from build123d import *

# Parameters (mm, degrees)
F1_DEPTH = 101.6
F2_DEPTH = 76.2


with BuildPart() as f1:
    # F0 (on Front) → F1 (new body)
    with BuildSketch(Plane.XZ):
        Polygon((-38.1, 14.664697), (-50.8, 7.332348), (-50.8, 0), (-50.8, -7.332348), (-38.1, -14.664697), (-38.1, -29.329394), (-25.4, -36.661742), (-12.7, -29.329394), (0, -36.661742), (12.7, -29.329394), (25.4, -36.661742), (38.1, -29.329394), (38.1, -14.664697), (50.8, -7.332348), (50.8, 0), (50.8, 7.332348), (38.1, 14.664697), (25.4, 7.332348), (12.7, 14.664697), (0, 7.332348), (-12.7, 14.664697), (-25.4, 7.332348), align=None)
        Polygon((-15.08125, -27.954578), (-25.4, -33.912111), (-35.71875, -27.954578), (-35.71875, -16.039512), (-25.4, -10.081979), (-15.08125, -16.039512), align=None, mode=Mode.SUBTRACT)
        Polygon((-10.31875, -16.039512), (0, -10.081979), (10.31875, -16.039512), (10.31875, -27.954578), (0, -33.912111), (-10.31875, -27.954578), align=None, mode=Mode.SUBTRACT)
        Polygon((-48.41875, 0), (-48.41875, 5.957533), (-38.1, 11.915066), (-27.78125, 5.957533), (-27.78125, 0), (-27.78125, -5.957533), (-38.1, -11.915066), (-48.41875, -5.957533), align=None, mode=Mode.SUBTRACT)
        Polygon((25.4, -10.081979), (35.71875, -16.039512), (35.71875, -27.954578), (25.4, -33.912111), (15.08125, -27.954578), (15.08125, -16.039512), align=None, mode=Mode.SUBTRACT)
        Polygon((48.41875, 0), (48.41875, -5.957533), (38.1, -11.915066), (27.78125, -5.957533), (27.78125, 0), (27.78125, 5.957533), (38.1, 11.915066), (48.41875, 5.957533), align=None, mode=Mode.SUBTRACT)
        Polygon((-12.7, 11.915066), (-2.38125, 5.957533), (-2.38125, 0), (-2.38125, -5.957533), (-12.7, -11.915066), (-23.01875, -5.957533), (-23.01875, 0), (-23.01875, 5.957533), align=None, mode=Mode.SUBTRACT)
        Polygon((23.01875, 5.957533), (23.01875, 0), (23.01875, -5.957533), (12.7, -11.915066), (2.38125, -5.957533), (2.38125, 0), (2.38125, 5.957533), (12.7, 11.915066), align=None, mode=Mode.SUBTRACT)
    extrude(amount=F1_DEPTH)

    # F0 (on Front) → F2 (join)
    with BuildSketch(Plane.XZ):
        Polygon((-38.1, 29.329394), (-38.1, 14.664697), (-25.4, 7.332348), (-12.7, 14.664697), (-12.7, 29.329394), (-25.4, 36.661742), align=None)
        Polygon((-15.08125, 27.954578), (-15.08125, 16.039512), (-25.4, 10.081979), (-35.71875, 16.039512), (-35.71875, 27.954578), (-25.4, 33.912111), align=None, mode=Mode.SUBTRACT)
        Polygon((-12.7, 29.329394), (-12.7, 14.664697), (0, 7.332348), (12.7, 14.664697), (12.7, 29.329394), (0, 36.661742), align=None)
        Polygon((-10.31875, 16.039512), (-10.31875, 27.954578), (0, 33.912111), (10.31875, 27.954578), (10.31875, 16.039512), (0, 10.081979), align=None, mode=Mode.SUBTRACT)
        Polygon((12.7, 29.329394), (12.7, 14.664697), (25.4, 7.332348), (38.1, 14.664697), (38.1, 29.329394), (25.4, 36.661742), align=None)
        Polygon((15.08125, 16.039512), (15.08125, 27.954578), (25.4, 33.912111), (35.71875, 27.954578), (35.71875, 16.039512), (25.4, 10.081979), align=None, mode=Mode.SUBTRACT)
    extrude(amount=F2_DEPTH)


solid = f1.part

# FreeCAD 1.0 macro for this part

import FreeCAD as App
import Part
import Sketcher
Q = App.Units.Quantity


def add_polygon(sketch, points):
    """Adds a closed chain of lines whose ends are joined by coincident constraints."""
    first, n = sketch.GeometryCount, len(points)
    for a, b in zip(points, points[1:] + points[:1]):
        sketch.addGeometry(Part.LineSegment(App.Vector(*a, 0), App.Vector(*b, 0)), False)
    for i in range(n):
        sketch.addConstraint(Sketcher.Constraint("Coincident", first + i, 2, first + (i + 1) % n, 1))

doc = App.newDocument("Part")
body = doc.addObject("PartDesign::Body", "Body")

# Sketch on XZ plane
sketch1 = body.newObject("Sketcher::SketchObject", "Sketch")
sketch1.AttachmentSupport = (doc.getObject("XZ_Plane"), [""])
sketch1.MapMode = "FlatFace"
add_polygon(sketch1, [(-38, 15), (-51, 7), (-51, -7), (-38, -15), (-38, -29), (-25, -37), (-13, -29), (0, -37), (13, -29), (25, -37), (38, -29), (38, -15), (51, -7), (51, 7), (38, 15), (25, 7), (13, 15), (0, 7), (-13, 15), (-25, 7)])  # lines 0-19
add_polygon(sketch1, [(-15, -16), (-15, -28), (-25, -34), (-36, -28), (-36, -16), (-25, -10)])  # lines 20-25
add_polygon(sketch1, [(-10, -28), (-10, -16), (0, -10), (10, -16), (10, -28), (0, -34)])  # lines 26-31
add_polygon(sketch1, [(15, -16), (25, -10), (36, -16), (36, -28), (25, -34), (15, -28)])  # lines 32-37
add_polygon(sketch1, [(-48, -6), (-48, 6), (-38, 12), (-28, 6), (-28, -6), (-38, -12)])  # lines 38-43
add_polygon(sketch1, [(-23, 6), (-13, 12), (-2, 6), (-2, -6), (-13, -12), (-23, -6)])  # lines 44-49
add_polygon(sketch1, [(13, 12), (23, 6), (23, -6), (13, -12), (2, -6), (2, 6)])  # lines 50-55
add_polygon(sketch1, [(48, 6), (48, -6), (38, -12), (28, -6), (28, 6), (38, 12)])  # lines 56-61
sketch1.addConstraint([
    Sketcher.Constraint("Vertical", 1),
    Sketcher.Constraint("Vertical", 3),
    Sketcher.Constraint("Vertical", 10),
    Sketcher.Constraint("Vertical", 12),
    Sketcher.Constraint("Vertical", 20),
    Sketcher.Constraint("Vertical", 23),
    Sketcher.Constraint("Vertical", 26),
    Sketcher.Constraint("Vertical", 29),
    Sketcher.Constraint("Vertical", 34),
    Sketcher.Constraint("Vertical", 37),
    Sketcher.Constraint("Vertical", 38),
    Sketcher.Constraint("Vertical", 41),
    Sketcher.Constraint("Vertical", 46),
    Sketcher.Constraint("Vertical", 49),
    Sketcher.Constraint("Vertical", 51),
    Sketcher.Constraint("Vertical", 54),
    Sketcher.Constraint("Vertical", 56),
    Sketcher.Constraint("Vertical", 59),
    Sketcher.Constraint("Symmetric", 0, 2, 11, 2, -1, 1),
    Sketcher.Constraint("Symmetric", 2, 2, 13, 2, -1, 1),
    Sketcher.Constraint("Symmetric", 10, 2, 19, 2, -1, 1),
    Sketcher.Constraint("Symmetric", 48, 2, 50, 2, -1, 1),
    Sketcher.Constraint("Symmetric", 44, 2, 52, 2, -1, 1),
    Sketcher.Constraint("Symmetric", 45, 2, 53, 2, -1, 1),
    Sketcher.Constraint("Symmetric", 47, 2, 55, 2, -1, 1),
    Sketcher.Constraint("Symmetric", 38, 2, 56, 2, -1, 1),
    Sketcher.Constraint("Symmetric", 39, 2, 57, 2, -1, 1),
    Sketcher.Constraint("Symmetric", 40, 2, 58, 2, -1, 1),
    Sketcher.Constraint("Symmetric", 42, 2, 60, 2, -1, 1),
    Sketcher.Constraint("Symmetric", 5, 2, 7, 2, -2),
    Sketcher.Constraint("Symmetric", 4, 2, 8, 2, -2),
    Sketcher.Constraint("Symmetric", 3, 2, 9, 2, -2),
    Sketcher.Constraint("Symmetric", 15, 2, 17, 2, -2),
    Sketcher.Constraint("Symmetric", 14, 2, 18, 2, -2),
    Sketcher.Constraint("Symmetric", 26, 2, 28, 2, -2),
    Sketcher.Constraint("Symmetric", 24, 2, 32, 2, -2),
    Sketcher.Constraint("Symmetric", 23, 2, 33, 2, -2),
    Sketcher.Constraint("Symmetric", 21, 2, 35, 2, -2),
    Sketcher.Constraint("Symmetric", 20, 2, 36, 2, -2),
    Sketcher.Constraint("Symmetric", 47, 2, 52, 2, -2),
    Sketcher.Constraint("Symmetric", 42, 2, 57, 2, -2),
    Sketcher.Constraint("PointOnObject", 6, 2, -2),
    Sketcher.Constraint("PointOnObject", 16, 2, -2),
    Sketcher.Constraint("PointOnObject", 27, 2, -2),
    Sketcher.Constraint("PointOnObject", 30, 2, -2),
    Sketcher.Constraint("Parallel", 2, 4),
    Sketcher.Constraint("Parallel", 0, 5),
    Sketcher.Constraint("Parallel", 4, 6),
    Sketcher.Constraint("Parallel", 5, 7),
    Sketcher.Constraint("Parallel", 8, 13),
    Sketcher.Constraint("Parallel", 11, 14),
    Sketcher.Constraint("Parallel", 13, 15),
    Sketcher.Constraint("Parallel", 14, 16),
    Sketcher.Constraint("Parallel", 17, 19),
    Sketcher.Constraint("Parallel", 18, 21),
    Sketcher.Constraint("Parallel", 19, 22),
    Sketcher.Constraint("Parallel", 21, 24),
    Sketcher.Constraint("Parallel", 22, 25),
    Sketcher.Constraint("Parallel", 24, 27),
    Sketcher.Constraint("Parallel", 27, 30),
    Sketcher.Constraint("Parallel", 28, 31),
    Sketcher.Constraint("Parallel", 30, 32),
    Sketcher.Constraint("Parallel", 32, 35),
    Sketcher.Constraint("Parallel", 35, 39),
    Sketcher.Constraint("Parallel", 36, 40),
    Sketcher.Constraint("Parallel", 39, 42),
    Sketcher.Constraint("Parallel", 40, 43),
    Sketcher.Constraint("Parallel", 42, 44),
    Sketcher.Constraint("Parallel", 43, 45),
    Sketcher.Constraint("Parallel", 44, 47),
    Sketcher.Constraint("Parallel", 45, 48),
    Sketcher.Constraint("Parallel", 47, 52),
    Sketcher.Constraint("Parallel", 52, 55),
    Sketcher.Constraint("Parallel", 57, 60),
    Sketcher.Constraint("Parallel", 58, 61),
    Sketcher.Constraint("Horizontal", 3, 2, 5, 2),
    Sketcher.Constraint("Horizontal", 4, 2, 6, 2),
    Sketcher.Constraint("Horizontal", 12, 2, 14, 2),
    Sketcher.Constraint("Horizontal", 13, 2, 15, 2),
    Sketcher.Constraint("Horizontal", 14, 2, 16, 2),
    Sketcher.Constraint("Horizontal", 20, 2, 22, 2),
    Sketcher.Constraint("Horizontal", 23, 2, 25, 2),
    Sketcher.Constraint("Horizontal", 25, 2, 26, 2),
    Sketcher.Constraint("Horizontal", 24, 2, 27, 2),
    Sketcher.Constraint("Horizontal", 22, 2, 29, 2),
    Sketcher.Constraint("Horizontal", 38, 2, 40, 2),
    Sketcher.Constraint("Horizontal", 39, 2, 44, 2),
    Sketcher.Constraint("Horizontal", 40, 2, 45, 2),
    Sketcher.Constraint("Horizontal", 46, 2, 48, 2),
    Sketcher.Constraint("Vertical", 18, 2, 21, 2),
    Sketcher.Constraint("Vertical", 19, 2, 39, 2),
    Sketcher.Constraint("Vertical", 17, 2, 44, 2),
    Sketcher.Constraint("Equal", 1, 3),
    Sketcher.Constraint("Equal", 37, 38),
    Sketcher.Constraint("Equal", 36, 39),
    Sketcher.Constraint("DistanceX", 0, 2, -1, 1, Q("2 in")),
    Sketcher.Constraint("Angle", 0, Q("-149.999998 deg")),
    Sketcher.Constraint("DistanceX", 20, 2, -1, 1, Q("0.59375 in")),
    Sketcher.Constraint("DistanceY", 1, 2, 1, 1, Q("14.664696 mm")),
    Sketcher.Constraint("DistanceY", 20, 2, 20, 1, Q("11.915066 mm")),
    Sketcher.Constraint("DistanceY", 20, 2, -1, 1, Q("27.954578 mm")),
])
pad1 = body.newObject("PartDesign::Pad", "Pad")
pad1.Profile = sketch1
pad1.Length = Q("4 in")

# Sketch on XZ plane
sketch2 = body.newObject("Sketcher::SketchObject", "Sketch001")
sketch2.AttachmentSupport = (doc.getObject("XZ_Plane"), [""])
sketch2.MapMode = "FlatFace"
add_polygon(sketch2, [(-38, 29), (-38, 15), (-25, 7), (-13, 15), (0, 7), (13, 15), (25, 7), (38, 15), (38, 29), (25, 37), (13, 29), (0, 37), (-13, 29), (-25, 37)])  # lines 0-13
add_polygon(sketch2, [(-25, 34), (-15, 28), (-15, 16), (-25, 10), (-36, 16), (-36, 28)])  # lines 14-19
add_polygon(sketch2, [(0, 10), (-10, 16), (-10, 28), (0, 34), (10, 28), (10, 16)])  # lines 20-25
add_polygon(sketch2, [(25, 10), (15, 16), (15, 28), (25, 34), (36, 28), (36, 16)])  # lines 26-31
sketch2.addConstraint([
    Sketcher.Constraint("Vertical", 0),
    Sketcher.Constraint("Vertical", 7),
    Sketcher.Constraint("Vertical", 15),
    Sketcher.Constraint("Vertical", 18),
    Sketcher.Constraint("Vertical", 21),
    Sketcher.Constraint("Vertical", 24),
    Sketcher.Constraint("Vertical", 27),
    Sketcher.Constraint("Vertical", 30),
    Sketcher.Constraint("Symmetric", 2, 2, 4, 2, -2),
    Sketcher.Constraint("Symmetric", 1, 2, 5, 2, -2),
    Sketcher.Constraint("Symmetric", 0, 2, 6, 2, -2),
    Sketcher.Constraint("Symmetric", 9, 2, 11, 2, -2),
    Sketcher.Constraint("Symmetric", 8, 2, 12, 2, -2),
    Sketcher.Constraint("Symmetric", 21, 2, 23, 2, -2),
    Sketcher.Constraint("Symmetric", 15, 2, 26, 2, -2),
    Sketcher.Constraint("Symmetric", 19, 2, 28, 2, -2),
    Sketcher.Constraint("Symmetric", 18, 2, 29, 2, -2),
    Sketcher.Constraint("Symmetric", 16, 2, 31, 2, -2),
    Sketcher.Constraint("PointOnObject", 3, 2, -2),
    Sketcher.Constraint("PointOnObject", 10, 2, -2),
    Sketcher.Constraint("PointOnObject", 22, 2, -2),
    Sketcher.Constraint("PointOnObject", 25, 2, -2),
    Sketcher.Constraint("Parallel", 1, 3),
    Sketcher.Constraint("Parallel", 2, 4),
    Sketcher.Constraint("Parallel", 5, 8),
    Sketcher.Constraint("Parallel", 6, 9),
    Sketcher.Constraint("Parallel", 8, 10),
    Sketcher.Constraint("Parallel", 11, 13),
    Sketcher.Constraint("Parallel", 12, 14),
    Sketcher.Constraint("Parallel", 13, 16),
    Sketcher.Constraint("Parallel", 14, 17),
    Sketcher.Constraint("Parallel", 16, 19),
    Sketcher.Constraint("Parallel", 17, 20),
    Sketcher.Constraint("Parallel", 19, 22),
    Sketcher.Constraint("Parallel", 22, 25),
    Sketcher.Constraint("Parallel", 25, 28),
    Sketcher.Constraint("Parallel", 28, 31),
    Sketcher.Constraint("Horizontal", 0, 2, 2, 2),
    Sketcher.Constraint("Horizontal", 1, 2, 3, 2),
    Sketcher.Constraint("Horizontal", 7, 2, 9, 2),
    Sketcher.Constraint("Horizontal", 8, 2, 10, 2),
    Sketcher.Constraint("Horizontal", 15, 2, 17, 2),
    Sketcher.Constraint("Horizontal", 14, 2, 18, 2),
    Sketcher.Constraint("Horizontal", 17, 2, 20, 2),
    Sketcher.Constraint("Horizontal", 18, 2, 21, 2),
    Sketcher.Constraint("Horizontal", 19, 2, 22, 2),
    Sketcher.Constraint("Vertical", 12, 2, 16, 2),
    Sketcher.Constraint("DistanceX", 1, 2, -1, 1, Q("1 in")),
    Sketcher.Constraint("Angle", 1, Q("-30.000002 deg")),
    Sketcher.Constraint("DistanceX", 14, 2, -1, 1, Q("0.59375 in")),
    Sketcher.Constraint("DistanceY", 16, 2, 14, 2, Q("17.872599 mm")),
    Sketcher.Constraint("DistanceY", 0, 2, 0, 1, Q("14.664697 mm")),
    Sketcher.Constraint("DistanceY", -1, 1, 8, 2, Q("36.661742 mm")),
    Sketcher.Constraint("DistanceY", -1, 1, 14, 2, Q("27.954578 mm")),
])
pad2 = body.newObject("PartDesign::Pad", "Pad001")
pad2.Profile = sketch2
pad2.Length = Q("3 in")

doc.recompute()
